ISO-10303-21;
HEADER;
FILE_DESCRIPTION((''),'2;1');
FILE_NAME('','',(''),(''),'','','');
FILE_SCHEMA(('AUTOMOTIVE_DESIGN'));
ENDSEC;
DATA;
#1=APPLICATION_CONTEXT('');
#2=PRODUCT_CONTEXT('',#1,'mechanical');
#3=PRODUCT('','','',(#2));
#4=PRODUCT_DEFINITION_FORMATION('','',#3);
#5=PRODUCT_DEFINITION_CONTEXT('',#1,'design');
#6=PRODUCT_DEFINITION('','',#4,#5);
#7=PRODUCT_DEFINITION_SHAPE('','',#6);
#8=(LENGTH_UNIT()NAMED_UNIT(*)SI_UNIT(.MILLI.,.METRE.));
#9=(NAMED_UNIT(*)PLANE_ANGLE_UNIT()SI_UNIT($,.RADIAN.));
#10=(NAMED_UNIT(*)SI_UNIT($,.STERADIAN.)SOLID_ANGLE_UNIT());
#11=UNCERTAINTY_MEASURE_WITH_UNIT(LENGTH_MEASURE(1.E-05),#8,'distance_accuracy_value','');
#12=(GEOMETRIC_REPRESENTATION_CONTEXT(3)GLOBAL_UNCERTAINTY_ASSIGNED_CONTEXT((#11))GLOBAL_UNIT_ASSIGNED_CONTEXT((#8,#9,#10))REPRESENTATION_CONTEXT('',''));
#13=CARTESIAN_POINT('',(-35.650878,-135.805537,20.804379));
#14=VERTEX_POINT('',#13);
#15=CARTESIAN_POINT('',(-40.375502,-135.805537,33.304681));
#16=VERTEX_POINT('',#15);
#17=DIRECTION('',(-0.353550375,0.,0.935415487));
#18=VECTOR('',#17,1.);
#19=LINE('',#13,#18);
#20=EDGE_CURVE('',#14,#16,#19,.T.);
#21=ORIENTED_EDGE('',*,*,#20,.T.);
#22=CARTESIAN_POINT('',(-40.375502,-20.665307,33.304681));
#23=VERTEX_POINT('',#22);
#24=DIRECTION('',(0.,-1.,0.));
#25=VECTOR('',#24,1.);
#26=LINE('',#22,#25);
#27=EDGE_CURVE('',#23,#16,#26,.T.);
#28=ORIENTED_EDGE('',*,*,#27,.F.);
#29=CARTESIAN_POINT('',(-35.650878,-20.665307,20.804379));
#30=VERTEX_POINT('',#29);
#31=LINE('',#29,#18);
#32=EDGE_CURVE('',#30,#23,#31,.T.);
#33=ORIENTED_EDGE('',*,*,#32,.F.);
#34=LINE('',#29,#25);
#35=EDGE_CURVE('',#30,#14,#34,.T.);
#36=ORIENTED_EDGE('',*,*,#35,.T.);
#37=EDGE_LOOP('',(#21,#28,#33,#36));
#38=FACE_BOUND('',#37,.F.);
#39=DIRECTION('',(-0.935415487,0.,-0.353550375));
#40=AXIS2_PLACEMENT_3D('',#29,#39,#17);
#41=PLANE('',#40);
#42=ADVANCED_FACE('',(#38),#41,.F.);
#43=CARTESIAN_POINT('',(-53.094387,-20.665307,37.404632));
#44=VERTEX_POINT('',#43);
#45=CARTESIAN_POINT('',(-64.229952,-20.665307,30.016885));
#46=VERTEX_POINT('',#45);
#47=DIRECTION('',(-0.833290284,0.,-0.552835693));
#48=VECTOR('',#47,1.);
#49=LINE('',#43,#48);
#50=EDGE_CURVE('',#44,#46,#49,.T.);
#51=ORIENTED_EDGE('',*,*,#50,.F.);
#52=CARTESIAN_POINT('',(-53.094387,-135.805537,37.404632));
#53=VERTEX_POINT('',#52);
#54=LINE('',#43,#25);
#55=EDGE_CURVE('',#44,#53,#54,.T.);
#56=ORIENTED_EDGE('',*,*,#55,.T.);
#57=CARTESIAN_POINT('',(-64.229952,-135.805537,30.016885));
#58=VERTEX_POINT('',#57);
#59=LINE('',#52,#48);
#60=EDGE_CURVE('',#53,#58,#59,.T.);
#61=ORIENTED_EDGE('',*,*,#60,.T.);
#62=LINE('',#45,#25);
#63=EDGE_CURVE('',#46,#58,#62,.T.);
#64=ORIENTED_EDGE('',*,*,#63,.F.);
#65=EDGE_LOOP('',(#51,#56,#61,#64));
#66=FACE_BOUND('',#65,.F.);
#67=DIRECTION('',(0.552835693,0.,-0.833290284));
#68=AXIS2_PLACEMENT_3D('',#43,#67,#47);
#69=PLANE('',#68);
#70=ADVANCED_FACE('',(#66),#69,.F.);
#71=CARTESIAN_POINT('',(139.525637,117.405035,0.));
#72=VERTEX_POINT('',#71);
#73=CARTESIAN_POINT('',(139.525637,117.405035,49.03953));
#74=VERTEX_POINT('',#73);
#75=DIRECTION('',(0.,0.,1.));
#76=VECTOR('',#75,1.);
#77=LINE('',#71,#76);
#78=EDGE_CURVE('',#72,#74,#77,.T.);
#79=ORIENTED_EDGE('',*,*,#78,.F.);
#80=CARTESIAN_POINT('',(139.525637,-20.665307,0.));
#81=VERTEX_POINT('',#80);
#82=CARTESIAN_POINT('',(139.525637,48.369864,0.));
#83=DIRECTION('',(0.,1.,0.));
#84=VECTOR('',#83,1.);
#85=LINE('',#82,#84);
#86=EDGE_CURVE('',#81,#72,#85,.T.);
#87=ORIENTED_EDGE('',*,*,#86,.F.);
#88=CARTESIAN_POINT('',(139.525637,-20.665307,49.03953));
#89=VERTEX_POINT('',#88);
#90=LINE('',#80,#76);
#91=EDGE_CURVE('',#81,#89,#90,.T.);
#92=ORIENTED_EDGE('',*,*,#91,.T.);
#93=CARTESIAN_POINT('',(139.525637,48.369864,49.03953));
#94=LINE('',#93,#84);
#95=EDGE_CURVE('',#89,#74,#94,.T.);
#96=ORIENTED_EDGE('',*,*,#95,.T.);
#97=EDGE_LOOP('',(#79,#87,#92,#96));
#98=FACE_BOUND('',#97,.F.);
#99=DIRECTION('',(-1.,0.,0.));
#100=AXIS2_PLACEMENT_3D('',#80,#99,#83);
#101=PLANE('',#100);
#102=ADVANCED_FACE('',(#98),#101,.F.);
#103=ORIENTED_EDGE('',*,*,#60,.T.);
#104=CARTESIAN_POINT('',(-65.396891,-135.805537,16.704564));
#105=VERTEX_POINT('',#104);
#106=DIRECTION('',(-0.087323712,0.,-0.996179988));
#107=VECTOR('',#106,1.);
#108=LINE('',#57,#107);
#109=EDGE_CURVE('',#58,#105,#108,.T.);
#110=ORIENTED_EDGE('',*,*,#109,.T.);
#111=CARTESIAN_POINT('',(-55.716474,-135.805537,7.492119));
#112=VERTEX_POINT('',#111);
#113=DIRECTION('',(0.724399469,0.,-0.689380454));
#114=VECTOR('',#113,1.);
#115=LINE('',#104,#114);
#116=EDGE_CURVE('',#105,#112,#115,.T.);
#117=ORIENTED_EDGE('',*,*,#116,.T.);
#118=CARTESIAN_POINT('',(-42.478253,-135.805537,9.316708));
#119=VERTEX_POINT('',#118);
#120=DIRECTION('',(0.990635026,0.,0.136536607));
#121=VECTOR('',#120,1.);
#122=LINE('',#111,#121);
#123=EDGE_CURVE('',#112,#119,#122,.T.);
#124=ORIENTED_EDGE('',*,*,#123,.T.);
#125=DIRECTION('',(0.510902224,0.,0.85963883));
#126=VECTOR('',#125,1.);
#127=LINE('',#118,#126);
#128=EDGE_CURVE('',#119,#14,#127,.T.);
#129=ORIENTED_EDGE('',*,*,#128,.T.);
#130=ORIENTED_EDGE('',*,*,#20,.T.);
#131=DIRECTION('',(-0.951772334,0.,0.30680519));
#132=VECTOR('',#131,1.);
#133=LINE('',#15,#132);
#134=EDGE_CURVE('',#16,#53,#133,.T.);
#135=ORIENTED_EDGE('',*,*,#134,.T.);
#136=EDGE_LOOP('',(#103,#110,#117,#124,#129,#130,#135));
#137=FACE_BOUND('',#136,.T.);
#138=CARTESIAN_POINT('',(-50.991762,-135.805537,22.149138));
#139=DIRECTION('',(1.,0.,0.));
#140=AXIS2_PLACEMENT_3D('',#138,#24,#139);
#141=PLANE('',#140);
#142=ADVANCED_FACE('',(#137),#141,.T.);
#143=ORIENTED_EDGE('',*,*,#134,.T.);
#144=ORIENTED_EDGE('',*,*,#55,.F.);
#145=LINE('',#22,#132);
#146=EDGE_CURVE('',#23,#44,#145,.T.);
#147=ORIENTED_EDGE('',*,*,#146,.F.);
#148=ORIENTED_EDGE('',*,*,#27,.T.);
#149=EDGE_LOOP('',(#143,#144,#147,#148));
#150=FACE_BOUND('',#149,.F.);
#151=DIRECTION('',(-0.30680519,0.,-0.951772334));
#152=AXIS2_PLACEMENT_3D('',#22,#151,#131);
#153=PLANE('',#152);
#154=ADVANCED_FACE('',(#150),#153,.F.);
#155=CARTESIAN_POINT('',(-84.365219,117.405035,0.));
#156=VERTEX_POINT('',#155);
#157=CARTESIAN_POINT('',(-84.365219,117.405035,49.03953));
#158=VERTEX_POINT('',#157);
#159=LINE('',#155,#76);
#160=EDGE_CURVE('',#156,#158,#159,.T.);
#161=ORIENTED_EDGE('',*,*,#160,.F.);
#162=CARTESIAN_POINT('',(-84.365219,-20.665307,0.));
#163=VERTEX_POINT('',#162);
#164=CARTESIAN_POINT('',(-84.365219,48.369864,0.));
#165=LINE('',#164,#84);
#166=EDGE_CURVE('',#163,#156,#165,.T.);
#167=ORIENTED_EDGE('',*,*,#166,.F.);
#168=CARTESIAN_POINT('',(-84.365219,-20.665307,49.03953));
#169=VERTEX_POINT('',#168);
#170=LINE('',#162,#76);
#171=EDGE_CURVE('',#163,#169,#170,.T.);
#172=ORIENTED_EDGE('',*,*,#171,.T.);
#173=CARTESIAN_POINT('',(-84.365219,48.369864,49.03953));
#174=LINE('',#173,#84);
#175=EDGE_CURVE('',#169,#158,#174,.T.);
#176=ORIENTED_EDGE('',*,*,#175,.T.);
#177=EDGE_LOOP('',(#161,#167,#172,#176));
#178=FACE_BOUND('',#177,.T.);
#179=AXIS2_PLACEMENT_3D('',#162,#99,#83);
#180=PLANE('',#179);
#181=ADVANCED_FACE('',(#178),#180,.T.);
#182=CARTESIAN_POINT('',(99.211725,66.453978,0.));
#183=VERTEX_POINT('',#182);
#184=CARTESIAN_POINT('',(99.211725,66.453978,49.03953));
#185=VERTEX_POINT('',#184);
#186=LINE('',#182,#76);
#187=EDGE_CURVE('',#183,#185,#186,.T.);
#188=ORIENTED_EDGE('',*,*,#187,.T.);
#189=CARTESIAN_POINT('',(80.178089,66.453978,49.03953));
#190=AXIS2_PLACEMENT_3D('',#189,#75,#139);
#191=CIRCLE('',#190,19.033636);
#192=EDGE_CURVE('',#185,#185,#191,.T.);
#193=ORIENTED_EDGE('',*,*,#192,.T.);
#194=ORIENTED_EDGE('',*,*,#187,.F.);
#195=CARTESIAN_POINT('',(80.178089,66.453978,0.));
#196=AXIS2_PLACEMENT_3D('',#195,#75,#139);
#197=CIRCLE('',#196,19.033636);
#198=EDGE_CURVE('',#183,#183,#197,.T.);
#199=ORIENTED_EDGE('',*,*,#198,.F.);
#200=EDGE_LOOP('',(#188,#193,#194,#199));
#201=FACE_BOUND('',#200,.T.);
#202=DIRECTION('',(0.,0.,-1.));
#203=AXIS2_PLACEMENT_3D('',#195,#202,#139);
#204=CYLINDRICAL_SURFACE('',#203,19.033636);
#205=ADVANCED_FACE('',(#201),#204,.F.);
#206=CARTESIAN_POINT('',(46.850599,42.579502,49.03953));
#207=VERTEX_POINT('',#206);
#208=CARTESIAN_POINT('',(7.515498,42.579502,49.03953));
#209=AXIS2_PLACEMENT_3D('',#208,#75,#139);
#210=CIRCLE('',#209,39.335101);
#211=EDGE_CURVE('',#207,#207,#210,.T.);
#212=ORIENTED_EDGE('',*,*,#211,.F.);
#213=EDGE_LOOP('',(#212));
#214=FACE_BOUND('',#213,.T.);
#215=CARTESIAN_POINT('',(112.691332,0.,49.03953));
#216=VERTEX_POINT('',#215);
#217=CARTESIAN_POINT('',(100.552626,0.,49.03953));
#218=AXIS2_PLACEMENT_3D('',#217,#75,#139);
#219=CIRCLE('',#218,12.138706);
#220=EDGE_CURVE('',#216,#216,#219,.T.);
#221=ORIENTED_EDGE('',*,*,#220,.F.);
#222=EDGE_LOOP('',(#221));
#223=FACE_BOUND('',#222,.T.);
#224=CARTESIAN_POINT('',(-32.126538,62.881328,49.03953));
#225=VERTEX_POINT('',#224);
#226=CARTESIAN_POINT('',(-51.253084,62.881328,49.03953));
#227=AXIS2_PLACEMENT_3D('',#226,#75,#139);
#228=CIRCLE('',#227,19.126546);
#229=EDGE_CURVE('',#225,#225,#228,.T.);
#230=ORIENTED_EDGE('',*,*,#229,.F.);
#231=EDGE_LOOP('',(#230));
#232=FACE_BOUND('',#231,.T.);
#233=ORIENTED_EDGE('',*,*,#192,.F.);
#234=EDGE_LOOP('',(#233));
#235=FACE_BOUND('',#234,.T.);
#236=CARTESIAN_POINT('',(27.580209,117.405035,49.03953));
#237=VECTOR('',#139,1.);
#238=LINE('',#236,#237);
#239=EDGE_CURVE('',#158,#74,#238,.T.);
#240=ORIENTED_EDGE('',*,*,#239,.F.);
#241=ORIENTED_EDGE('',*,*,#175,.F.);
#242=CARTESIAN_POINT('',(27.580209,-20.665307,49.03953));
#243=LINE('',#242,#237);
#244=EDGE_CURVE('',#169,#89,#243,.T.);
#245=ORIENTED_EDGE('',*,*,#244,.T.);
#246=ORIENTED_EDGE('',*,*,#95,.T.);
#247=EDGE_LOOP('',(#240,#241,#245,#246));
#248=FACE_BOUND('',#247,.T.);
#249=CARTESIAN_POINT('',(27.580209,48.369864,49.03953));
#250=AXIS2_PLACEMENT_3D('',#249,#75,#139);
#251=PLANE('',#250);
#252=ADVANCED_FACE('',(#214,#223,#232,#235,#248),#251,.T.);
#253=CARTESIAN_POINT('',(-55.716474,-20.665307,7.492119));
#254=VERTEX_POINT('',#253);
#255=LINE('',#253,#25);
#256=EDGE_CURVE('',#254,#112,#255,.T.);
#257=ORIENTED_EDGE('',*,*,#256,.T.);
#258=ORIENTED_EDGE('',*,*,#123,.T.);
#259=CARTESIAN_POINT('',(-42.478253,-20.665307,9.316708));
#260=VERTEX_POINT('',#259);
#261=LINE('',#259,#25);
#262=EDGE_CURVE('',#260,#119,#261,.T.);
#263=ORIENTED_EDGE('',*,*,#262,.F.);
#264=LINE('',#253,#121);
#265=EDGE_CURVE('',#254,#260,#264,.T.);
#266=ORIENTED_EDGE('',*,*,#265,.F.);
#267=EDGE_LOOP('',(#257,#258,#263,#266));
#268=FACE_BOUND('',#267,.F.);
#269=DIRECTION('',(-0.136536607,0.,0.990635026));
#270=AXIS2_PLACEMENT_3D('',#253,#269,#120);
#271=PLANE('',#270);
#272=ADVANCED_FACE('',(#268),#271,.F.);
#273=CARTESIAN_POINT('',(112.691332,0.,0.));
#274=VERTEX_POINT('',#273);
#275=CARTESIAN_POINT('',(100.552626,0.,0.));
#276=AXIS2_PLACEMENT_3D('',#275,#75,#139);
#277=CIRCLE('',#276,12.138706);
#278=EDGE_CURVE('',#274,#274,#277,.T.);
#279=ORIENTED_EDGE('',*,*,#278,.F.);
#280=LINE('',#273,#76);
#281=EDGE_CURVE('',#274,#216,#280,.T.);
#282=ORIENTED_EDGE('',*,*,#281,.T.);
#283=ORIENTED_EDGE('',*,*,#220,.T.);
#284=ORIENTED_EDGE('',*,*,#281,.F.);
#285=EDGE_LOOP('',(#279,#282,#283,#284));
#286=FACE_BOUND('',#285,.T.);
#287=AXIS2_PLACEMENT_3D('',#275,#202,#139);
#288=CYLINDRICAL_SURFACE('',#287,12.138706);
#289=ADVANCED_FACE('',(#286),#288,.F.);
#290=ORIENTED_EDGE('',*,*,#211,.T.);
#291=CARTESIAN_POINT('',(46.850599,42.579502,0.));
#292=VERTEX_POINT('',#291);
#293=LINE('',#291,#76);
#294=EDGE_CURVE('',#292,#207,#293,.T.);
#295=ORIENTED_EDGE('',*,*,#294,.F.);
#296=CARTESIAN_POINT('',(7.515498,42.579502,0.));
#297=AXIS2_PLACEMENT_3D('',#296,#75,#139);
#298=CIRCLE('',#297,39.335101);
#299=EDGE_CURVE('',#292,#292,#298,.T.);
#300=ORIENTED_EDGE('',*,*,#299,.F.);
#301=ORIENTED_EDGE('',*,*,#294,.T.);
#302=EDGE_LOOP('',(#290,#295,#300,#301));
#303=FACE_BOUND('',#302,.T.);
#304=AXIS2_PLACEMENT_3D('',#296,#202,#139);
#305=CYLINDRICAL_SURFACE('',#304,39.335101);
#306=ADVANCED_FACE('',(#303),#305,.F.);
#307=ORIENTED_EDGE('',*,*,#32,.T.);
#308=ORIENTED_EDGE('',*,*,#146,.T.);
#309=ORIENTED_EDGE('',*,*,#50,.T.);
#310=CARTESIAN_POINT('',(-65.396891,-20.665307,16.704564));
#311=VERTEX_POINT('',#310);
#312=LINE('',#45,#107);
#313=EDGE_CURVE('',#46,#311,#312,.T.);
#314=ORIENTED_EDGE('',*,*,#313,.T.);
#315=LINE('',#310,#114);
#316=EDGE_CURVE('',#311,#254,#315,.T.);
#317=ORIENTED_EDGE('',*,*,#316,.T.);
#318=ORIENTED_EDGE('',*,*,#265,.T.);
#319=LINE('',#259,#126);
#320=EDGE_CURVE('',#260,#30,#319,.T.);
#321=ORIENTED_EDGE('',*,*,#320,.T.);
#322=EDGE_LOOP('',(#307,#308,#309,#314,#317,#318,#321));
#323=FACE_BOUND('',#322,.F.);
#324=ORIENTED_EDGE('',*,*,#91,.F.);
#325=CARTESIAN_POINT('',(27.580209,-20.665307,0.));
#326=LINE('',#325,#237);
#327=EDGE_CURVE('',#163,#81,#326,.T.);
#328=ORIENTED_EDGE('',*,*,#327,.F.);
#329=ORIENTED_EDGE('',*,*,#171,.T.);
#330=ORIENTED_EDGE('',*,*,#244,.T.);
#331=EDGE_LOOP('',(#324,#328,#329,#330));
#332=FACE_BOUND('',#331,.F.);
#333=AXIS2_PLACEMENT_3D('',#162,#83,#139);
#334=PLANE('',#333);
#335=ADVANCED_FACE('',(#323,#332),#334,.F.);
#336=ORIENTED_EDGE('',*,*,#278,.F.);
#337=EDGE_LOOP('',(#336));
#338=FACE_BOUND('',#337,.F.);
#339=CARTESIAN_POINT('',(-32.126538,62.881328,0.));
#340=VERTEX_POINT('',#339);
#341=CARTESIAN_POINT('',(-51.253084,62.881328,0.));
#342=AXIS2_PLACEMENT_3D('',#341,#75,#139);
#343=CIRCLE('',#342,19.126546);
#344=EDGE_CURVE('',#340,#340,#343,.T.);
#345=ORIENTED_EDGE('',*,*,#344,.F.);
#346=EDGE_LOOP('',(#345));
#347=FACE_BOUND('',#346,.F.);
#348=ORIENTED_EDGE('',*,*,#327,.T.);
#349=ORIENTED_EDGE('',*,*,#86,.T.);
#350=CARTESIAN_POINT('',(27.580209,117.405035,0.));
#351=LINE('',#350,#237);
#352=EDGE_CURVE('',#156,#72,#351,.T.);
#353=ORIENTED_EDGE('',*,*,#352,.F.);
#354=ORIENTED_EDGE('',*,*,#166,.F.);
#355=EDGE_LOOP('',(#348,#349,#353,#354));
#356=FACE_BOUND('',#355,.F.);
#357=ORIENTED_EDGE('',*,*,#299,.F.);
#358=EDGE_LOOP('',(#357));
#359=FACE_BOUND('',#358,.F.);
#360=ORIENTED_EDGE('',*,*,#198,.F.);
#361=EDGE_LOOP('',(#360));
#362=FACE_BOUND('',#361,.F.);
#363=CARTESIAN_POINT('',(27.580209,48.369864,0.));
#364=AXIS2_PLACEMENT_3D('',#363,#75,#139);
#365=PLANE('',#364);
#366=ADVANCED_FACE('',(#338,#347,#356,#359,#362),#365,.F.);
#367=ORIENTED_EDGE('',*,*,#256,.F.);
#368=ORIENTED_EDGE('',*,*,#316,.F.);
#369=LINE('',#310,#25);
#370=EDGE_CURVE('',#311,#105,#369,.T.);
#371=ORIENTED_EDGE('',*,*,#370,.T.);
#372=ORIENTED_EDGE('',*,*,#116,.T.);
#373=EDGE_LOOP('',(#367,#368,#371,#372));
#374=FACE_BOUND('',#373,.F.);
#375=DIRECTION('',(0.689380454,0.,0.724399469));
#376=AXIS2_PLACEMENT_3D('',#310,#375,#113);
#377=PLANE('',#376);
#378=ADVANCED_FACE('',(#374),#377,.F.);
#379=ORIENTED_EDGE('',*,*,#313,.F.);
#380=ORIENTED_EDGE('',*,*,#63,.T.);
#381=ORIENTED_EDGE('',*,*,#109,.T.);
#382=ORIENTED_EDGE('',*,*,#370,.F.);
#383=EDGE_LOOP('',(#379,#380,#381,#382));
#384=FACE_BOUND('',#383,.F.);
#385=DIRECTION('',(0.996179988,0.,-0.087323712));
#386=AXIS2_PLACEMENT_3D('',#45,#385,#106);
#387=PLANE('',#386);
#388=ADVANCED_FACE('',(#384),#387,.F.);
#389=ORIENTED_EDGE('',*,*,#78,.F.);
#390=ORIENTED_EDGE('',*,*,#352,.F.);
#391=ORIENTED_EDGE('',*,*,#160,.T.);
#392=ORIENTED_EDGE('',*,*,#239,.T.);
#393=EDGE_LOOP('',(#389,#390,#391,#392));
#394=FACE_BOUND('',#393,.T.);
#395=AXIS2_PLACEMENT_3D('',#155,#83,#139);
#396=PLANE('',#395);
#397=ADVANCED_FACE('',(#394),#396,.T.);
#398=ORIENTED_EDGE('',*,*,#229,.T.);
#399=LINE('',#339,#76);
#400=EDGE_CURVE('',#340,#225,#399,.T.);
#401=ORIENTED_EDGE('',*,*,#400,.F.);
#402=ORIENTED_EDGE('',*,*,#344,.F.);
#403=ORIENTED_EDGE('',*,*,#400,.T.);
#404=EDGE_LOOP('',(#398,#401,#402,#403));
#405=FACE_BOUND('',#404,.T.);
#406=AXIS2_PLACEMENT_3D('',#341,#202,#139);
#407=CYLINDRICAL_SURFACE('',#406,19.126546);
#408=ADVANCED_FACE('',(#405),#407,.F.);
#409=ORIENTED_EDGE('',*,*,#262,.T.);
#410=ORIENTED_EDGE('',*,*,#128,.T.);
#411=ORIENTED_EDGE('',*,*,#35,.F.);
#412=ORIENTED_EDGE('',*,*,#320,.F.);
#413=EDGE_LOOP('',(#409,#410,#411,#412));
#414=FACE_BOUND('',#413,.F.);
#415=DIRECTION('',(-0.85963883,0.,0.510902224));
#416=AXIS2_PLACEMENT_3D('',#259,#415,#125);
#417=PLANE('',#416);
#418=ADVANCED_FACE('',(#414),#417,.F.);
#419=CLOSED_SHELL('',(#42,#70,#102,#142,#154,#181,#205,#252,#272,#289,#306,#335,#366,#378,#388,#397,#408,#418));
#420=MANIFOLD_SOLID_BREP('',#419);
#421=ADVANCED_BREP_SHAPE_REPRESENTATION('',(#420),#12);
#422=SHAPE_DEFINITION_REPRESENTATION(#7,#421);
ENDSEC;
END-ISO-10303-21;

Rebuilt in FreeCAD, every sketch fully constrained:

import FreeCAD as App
import Part
import Sketcher
from FreeCAD import Vector

doc = App.newDocument("Part")
params = doc.addObject("Spreadsheet::Sheet", "Params")
for row, (alias, value) in enumerate([
    ("pad1_length", "49.03953 mm"),
    ("pad2_length", "115.14023 mm"),
], start=1):
    params.set(f"A{row}", alias)
    params.set(f"B{row}", "=" + value)
    params.setAlias(f"B{row}", alias)

body = doc.addObject("PartDesign::Body", "Body")

sketch1 = doc.addObject("Sketcher::SketchObject", "Sketch")
body.addObject(sketch1)
sketch1.AttachmentSupport = (doc.XY_Plane, [""])
sketch1.MapMode = "FlatFace"
sketch1.addGeometry(Part.LineSegment(Vector(-84, 117, 0), Vector(-84, -21, 0)), False)
sketch1.addGeometry(Part.LineSegment(Vector(-84, -21, 0), Vector(140, -21, 0)), False)
sketch1.addGeometry(Part.LineSegment(Vector(140, -21, 0), Vector(140, 117, 0)), False)
sketch1.addGeometry(Part.LineSegment(Vector(140, 117, 0), Vector(-84, 117, 0)), False)
sketch1.addGeometry(Part.Circle(Vector(101, 0, 0), Vector(0, 0, 1), 12), False)
sketch1.addGeometry(Part.Circle(Vector(8, 43, 0), Vector(0, 0, 1), 39), False)
sketch1.addGeometry(Part.Circle(Vector(-51, 63, 0), Vector(0, 0, 1), 19), False)
sketch1.addGeometry(Part.Circle(Vector(80, 66, 0), Vector(0, 0, 1), 19), False)
sketch1.addConstraint(Sketcher.Constraint("Coincident", 0, 2, 1, 1))
sketch1.addConstraint(Sketcher.Constraint("Coincident", 1, 2, 2, 1))
sketch1.addConstraint(Sketcher.Constraint("Coincident", 2, 2, 3, 1))
sketch1.addConstraint(Sketcher.Constraint("Coincident", 3, 2, 0, 1))
sketch1.addConstraint(Sketcher.Constraint("Vertical", 0))
sketch1.addConstraint(Sketcher.Constraint("Horizontal", 1))
sketch1.addConstraint(Sketcher.Constraint("Vertical", 2))
sketch1.addConstraint(Sketcher.Constraint("Horizontal", 3))
sketch1.addConstraint(Sketcher.Constraint("PointOnObject", 4, 3, -1))
sketch1.addConstraint(Sketcher.Constraint("Diameter", 4, 24.277412))
sketch1.addConstraint(Sketcher.Constraint("Diameter", 5, 78.670202))
sketch1.addConstraint(Sketcher.Constraint("Diameter", 6, 38.253092))
sketch1.addConstraint(Sketcher.Constraint("Diameter", 7, 38.067272))
sketch1.addConstraint(Sketcher.Constraint("DistanceY", 0, 2, 0, 1, 138.070342))
sketch1.addConstraint(Sketcher.Constraint("DistanceY", -1, 1, 5, 3, 42.579502))
sketch1.addConstraint(Sketcher.Constraint("DistanceX", 1, 1, 1, 2, 223.890856))
sketch1.addConstraint(Sketcher.Constraint("DistanceY", -1, 1, 6, 3, 62.881328))
sketch1.addConstraint(Sketcher.Constraint("DistanceX", -1, 1, 7, 3, 80.178089))
sketch1.addConstraint(Sketcher.Constraint("DistanceY", -1, 1, 7, 3, 66.453978))
sketch1.addConstraint(Sketcher.Constraint("DistanceX", 0, 2, -1, 1, 84.365219))
sketch1.addConstraint(Sketcher.Constraint("DistanceX", 5, 3, 4, 3, 93.037128))
sketch1.addConstraint(Sketcher.Constraint("DistanceX", 6, 3, 4, 3, 151.80571))
sketch1.addConstraint(Sketcher.Constraint("DistanceX", 5, 3, 7, 3, 72.662591))
sketch1.addConstraint(Sketcher.Constraint("DistanceY", 0, 2, 5, 3, 63.244809))
pad1 = doc.addObject("PartDesign::Pad", "Pad")
body.addObject(pad1)
pad1.Profile = sketch1
pad1.setExpression("Length", "Params.pad1_length")

sketch2 = doc.addObject("Sketcher::SketchObject", "Sketch001")
body.addObject(sketch2)
sketch2.AttachmentSupport = (doc.XZ_Plane, [""])
sketch2.MapMode = "FlatFace"
sketch2.AttachmentOffset = App.Placement(Vector(0, 0, 20.665307), App.Rotation())
sketch2.addGeometry(Part.LineSegment(Vector(-36, 21, 0), Vector(-40, 33, 0)), False)
sketch2.addGeometry(Part.LineSegment(Vector(-40, 33, 0), Vector(-53, 37, 0)), False)
sketch2.addGeometry(Part.LineSegment(Vector(-53, 37, 0), Vector(-64, 30, 0)), False)
sketch2.addGeometry(Part.LineSegment(Vector(-64, 30, 0), Vector(-65, 17, 0)), False)
sketch2.addGeometry(Part.LineSegment(Vector(-65, 17, 0), Vector(-56, 7, 0)), False)
sketch2.addGeometry(Part.LineSegment(Vector(-56, 7, 0), Vector(-42, 9, 0)), False)
sketch2.addGeometry(Part.LineSegment(Vector(-42, 9, 0), Vector(-36, 21, 0)), False)
sketch2.addConstraint(Sketcher.Constraint("Coincident", 0, 2, 1, 1))
sketch2.addConstraint(Sketcher.Constraint("Coincident", 1, 2, 2, 1))
sketch2.addConstraint(Sketcher.Constraint("Coincident", 2, 2, 3, 1))
sketch2.addConstraint(Sketcher.Constraint("Coincident", 3, 2, 4, 1))
sketch2.addConstraint(Sketcher.Constraint("Coincident", 4, 2, 5, 1))
sketch2.addConstraint(Sketcher.Constraint("Coincident", 5, 2, 6, 1))
sketch2.addConstraint(Sketcher.Constraint("Coincident", 6, 2, 0, 1))
sketch2.addConstraint(Sketcher.Constraint("Equal", 0, 1))
sketch2.addConstraint(Sketcher.Constraint("Equal", 1, 2))
sketch2.addConstraint(Sketcher.Constraint("Equal", 2, 3))
sketch2.addConstraint(Sketcher.Constraint("Equal", 3, 4))
sketch2.addConstraint(Sketcher.Constraint("Equal", 4, 5))
sketch2.addConstraint(Sketcher.Constraint("Equal", 5, 6))
sketch2.addConstraint(Sketcher.Constraint("DistanceX", 0, 2, -1, 1, 40.375502))
sketch2.addConstraint(Sketcher.Constraint("DistanceX", 2, 2, 5, 2, 21.751699))
sketch2.addConstraint(Sketcher.Constraint("Distance", 0, 13.363369))
sketch2.addConstraint(Sketcher.Constraint("DistanceY", -1, 1, 0, 2, 33.304681))
sketch2.addConstraint(Sketcher.Constraint("DistanceX", 2, 2, -1, 1, 64.229952))
sketch2.addConstraint(Sketcher.Constraint("DistanceX", 3, 2, -1, 1, 65.396891))
sketch2.addConstraint(Sketcher.Constraint("DistanceY", -1, 1, 4, 2, 7.492119))
sketch2.addConstraint(Sketcher.Constraint("DistanceY", -1, 1, 6, 2, 20.804379))
pad2 = doc.addObject("PartDesign::Pad", "Pad001")
body.addObject(pad2)
pad2.Profile = sketch2
pad2.setExpression("Length", "Params.pad2_length")

doc.recompute()
